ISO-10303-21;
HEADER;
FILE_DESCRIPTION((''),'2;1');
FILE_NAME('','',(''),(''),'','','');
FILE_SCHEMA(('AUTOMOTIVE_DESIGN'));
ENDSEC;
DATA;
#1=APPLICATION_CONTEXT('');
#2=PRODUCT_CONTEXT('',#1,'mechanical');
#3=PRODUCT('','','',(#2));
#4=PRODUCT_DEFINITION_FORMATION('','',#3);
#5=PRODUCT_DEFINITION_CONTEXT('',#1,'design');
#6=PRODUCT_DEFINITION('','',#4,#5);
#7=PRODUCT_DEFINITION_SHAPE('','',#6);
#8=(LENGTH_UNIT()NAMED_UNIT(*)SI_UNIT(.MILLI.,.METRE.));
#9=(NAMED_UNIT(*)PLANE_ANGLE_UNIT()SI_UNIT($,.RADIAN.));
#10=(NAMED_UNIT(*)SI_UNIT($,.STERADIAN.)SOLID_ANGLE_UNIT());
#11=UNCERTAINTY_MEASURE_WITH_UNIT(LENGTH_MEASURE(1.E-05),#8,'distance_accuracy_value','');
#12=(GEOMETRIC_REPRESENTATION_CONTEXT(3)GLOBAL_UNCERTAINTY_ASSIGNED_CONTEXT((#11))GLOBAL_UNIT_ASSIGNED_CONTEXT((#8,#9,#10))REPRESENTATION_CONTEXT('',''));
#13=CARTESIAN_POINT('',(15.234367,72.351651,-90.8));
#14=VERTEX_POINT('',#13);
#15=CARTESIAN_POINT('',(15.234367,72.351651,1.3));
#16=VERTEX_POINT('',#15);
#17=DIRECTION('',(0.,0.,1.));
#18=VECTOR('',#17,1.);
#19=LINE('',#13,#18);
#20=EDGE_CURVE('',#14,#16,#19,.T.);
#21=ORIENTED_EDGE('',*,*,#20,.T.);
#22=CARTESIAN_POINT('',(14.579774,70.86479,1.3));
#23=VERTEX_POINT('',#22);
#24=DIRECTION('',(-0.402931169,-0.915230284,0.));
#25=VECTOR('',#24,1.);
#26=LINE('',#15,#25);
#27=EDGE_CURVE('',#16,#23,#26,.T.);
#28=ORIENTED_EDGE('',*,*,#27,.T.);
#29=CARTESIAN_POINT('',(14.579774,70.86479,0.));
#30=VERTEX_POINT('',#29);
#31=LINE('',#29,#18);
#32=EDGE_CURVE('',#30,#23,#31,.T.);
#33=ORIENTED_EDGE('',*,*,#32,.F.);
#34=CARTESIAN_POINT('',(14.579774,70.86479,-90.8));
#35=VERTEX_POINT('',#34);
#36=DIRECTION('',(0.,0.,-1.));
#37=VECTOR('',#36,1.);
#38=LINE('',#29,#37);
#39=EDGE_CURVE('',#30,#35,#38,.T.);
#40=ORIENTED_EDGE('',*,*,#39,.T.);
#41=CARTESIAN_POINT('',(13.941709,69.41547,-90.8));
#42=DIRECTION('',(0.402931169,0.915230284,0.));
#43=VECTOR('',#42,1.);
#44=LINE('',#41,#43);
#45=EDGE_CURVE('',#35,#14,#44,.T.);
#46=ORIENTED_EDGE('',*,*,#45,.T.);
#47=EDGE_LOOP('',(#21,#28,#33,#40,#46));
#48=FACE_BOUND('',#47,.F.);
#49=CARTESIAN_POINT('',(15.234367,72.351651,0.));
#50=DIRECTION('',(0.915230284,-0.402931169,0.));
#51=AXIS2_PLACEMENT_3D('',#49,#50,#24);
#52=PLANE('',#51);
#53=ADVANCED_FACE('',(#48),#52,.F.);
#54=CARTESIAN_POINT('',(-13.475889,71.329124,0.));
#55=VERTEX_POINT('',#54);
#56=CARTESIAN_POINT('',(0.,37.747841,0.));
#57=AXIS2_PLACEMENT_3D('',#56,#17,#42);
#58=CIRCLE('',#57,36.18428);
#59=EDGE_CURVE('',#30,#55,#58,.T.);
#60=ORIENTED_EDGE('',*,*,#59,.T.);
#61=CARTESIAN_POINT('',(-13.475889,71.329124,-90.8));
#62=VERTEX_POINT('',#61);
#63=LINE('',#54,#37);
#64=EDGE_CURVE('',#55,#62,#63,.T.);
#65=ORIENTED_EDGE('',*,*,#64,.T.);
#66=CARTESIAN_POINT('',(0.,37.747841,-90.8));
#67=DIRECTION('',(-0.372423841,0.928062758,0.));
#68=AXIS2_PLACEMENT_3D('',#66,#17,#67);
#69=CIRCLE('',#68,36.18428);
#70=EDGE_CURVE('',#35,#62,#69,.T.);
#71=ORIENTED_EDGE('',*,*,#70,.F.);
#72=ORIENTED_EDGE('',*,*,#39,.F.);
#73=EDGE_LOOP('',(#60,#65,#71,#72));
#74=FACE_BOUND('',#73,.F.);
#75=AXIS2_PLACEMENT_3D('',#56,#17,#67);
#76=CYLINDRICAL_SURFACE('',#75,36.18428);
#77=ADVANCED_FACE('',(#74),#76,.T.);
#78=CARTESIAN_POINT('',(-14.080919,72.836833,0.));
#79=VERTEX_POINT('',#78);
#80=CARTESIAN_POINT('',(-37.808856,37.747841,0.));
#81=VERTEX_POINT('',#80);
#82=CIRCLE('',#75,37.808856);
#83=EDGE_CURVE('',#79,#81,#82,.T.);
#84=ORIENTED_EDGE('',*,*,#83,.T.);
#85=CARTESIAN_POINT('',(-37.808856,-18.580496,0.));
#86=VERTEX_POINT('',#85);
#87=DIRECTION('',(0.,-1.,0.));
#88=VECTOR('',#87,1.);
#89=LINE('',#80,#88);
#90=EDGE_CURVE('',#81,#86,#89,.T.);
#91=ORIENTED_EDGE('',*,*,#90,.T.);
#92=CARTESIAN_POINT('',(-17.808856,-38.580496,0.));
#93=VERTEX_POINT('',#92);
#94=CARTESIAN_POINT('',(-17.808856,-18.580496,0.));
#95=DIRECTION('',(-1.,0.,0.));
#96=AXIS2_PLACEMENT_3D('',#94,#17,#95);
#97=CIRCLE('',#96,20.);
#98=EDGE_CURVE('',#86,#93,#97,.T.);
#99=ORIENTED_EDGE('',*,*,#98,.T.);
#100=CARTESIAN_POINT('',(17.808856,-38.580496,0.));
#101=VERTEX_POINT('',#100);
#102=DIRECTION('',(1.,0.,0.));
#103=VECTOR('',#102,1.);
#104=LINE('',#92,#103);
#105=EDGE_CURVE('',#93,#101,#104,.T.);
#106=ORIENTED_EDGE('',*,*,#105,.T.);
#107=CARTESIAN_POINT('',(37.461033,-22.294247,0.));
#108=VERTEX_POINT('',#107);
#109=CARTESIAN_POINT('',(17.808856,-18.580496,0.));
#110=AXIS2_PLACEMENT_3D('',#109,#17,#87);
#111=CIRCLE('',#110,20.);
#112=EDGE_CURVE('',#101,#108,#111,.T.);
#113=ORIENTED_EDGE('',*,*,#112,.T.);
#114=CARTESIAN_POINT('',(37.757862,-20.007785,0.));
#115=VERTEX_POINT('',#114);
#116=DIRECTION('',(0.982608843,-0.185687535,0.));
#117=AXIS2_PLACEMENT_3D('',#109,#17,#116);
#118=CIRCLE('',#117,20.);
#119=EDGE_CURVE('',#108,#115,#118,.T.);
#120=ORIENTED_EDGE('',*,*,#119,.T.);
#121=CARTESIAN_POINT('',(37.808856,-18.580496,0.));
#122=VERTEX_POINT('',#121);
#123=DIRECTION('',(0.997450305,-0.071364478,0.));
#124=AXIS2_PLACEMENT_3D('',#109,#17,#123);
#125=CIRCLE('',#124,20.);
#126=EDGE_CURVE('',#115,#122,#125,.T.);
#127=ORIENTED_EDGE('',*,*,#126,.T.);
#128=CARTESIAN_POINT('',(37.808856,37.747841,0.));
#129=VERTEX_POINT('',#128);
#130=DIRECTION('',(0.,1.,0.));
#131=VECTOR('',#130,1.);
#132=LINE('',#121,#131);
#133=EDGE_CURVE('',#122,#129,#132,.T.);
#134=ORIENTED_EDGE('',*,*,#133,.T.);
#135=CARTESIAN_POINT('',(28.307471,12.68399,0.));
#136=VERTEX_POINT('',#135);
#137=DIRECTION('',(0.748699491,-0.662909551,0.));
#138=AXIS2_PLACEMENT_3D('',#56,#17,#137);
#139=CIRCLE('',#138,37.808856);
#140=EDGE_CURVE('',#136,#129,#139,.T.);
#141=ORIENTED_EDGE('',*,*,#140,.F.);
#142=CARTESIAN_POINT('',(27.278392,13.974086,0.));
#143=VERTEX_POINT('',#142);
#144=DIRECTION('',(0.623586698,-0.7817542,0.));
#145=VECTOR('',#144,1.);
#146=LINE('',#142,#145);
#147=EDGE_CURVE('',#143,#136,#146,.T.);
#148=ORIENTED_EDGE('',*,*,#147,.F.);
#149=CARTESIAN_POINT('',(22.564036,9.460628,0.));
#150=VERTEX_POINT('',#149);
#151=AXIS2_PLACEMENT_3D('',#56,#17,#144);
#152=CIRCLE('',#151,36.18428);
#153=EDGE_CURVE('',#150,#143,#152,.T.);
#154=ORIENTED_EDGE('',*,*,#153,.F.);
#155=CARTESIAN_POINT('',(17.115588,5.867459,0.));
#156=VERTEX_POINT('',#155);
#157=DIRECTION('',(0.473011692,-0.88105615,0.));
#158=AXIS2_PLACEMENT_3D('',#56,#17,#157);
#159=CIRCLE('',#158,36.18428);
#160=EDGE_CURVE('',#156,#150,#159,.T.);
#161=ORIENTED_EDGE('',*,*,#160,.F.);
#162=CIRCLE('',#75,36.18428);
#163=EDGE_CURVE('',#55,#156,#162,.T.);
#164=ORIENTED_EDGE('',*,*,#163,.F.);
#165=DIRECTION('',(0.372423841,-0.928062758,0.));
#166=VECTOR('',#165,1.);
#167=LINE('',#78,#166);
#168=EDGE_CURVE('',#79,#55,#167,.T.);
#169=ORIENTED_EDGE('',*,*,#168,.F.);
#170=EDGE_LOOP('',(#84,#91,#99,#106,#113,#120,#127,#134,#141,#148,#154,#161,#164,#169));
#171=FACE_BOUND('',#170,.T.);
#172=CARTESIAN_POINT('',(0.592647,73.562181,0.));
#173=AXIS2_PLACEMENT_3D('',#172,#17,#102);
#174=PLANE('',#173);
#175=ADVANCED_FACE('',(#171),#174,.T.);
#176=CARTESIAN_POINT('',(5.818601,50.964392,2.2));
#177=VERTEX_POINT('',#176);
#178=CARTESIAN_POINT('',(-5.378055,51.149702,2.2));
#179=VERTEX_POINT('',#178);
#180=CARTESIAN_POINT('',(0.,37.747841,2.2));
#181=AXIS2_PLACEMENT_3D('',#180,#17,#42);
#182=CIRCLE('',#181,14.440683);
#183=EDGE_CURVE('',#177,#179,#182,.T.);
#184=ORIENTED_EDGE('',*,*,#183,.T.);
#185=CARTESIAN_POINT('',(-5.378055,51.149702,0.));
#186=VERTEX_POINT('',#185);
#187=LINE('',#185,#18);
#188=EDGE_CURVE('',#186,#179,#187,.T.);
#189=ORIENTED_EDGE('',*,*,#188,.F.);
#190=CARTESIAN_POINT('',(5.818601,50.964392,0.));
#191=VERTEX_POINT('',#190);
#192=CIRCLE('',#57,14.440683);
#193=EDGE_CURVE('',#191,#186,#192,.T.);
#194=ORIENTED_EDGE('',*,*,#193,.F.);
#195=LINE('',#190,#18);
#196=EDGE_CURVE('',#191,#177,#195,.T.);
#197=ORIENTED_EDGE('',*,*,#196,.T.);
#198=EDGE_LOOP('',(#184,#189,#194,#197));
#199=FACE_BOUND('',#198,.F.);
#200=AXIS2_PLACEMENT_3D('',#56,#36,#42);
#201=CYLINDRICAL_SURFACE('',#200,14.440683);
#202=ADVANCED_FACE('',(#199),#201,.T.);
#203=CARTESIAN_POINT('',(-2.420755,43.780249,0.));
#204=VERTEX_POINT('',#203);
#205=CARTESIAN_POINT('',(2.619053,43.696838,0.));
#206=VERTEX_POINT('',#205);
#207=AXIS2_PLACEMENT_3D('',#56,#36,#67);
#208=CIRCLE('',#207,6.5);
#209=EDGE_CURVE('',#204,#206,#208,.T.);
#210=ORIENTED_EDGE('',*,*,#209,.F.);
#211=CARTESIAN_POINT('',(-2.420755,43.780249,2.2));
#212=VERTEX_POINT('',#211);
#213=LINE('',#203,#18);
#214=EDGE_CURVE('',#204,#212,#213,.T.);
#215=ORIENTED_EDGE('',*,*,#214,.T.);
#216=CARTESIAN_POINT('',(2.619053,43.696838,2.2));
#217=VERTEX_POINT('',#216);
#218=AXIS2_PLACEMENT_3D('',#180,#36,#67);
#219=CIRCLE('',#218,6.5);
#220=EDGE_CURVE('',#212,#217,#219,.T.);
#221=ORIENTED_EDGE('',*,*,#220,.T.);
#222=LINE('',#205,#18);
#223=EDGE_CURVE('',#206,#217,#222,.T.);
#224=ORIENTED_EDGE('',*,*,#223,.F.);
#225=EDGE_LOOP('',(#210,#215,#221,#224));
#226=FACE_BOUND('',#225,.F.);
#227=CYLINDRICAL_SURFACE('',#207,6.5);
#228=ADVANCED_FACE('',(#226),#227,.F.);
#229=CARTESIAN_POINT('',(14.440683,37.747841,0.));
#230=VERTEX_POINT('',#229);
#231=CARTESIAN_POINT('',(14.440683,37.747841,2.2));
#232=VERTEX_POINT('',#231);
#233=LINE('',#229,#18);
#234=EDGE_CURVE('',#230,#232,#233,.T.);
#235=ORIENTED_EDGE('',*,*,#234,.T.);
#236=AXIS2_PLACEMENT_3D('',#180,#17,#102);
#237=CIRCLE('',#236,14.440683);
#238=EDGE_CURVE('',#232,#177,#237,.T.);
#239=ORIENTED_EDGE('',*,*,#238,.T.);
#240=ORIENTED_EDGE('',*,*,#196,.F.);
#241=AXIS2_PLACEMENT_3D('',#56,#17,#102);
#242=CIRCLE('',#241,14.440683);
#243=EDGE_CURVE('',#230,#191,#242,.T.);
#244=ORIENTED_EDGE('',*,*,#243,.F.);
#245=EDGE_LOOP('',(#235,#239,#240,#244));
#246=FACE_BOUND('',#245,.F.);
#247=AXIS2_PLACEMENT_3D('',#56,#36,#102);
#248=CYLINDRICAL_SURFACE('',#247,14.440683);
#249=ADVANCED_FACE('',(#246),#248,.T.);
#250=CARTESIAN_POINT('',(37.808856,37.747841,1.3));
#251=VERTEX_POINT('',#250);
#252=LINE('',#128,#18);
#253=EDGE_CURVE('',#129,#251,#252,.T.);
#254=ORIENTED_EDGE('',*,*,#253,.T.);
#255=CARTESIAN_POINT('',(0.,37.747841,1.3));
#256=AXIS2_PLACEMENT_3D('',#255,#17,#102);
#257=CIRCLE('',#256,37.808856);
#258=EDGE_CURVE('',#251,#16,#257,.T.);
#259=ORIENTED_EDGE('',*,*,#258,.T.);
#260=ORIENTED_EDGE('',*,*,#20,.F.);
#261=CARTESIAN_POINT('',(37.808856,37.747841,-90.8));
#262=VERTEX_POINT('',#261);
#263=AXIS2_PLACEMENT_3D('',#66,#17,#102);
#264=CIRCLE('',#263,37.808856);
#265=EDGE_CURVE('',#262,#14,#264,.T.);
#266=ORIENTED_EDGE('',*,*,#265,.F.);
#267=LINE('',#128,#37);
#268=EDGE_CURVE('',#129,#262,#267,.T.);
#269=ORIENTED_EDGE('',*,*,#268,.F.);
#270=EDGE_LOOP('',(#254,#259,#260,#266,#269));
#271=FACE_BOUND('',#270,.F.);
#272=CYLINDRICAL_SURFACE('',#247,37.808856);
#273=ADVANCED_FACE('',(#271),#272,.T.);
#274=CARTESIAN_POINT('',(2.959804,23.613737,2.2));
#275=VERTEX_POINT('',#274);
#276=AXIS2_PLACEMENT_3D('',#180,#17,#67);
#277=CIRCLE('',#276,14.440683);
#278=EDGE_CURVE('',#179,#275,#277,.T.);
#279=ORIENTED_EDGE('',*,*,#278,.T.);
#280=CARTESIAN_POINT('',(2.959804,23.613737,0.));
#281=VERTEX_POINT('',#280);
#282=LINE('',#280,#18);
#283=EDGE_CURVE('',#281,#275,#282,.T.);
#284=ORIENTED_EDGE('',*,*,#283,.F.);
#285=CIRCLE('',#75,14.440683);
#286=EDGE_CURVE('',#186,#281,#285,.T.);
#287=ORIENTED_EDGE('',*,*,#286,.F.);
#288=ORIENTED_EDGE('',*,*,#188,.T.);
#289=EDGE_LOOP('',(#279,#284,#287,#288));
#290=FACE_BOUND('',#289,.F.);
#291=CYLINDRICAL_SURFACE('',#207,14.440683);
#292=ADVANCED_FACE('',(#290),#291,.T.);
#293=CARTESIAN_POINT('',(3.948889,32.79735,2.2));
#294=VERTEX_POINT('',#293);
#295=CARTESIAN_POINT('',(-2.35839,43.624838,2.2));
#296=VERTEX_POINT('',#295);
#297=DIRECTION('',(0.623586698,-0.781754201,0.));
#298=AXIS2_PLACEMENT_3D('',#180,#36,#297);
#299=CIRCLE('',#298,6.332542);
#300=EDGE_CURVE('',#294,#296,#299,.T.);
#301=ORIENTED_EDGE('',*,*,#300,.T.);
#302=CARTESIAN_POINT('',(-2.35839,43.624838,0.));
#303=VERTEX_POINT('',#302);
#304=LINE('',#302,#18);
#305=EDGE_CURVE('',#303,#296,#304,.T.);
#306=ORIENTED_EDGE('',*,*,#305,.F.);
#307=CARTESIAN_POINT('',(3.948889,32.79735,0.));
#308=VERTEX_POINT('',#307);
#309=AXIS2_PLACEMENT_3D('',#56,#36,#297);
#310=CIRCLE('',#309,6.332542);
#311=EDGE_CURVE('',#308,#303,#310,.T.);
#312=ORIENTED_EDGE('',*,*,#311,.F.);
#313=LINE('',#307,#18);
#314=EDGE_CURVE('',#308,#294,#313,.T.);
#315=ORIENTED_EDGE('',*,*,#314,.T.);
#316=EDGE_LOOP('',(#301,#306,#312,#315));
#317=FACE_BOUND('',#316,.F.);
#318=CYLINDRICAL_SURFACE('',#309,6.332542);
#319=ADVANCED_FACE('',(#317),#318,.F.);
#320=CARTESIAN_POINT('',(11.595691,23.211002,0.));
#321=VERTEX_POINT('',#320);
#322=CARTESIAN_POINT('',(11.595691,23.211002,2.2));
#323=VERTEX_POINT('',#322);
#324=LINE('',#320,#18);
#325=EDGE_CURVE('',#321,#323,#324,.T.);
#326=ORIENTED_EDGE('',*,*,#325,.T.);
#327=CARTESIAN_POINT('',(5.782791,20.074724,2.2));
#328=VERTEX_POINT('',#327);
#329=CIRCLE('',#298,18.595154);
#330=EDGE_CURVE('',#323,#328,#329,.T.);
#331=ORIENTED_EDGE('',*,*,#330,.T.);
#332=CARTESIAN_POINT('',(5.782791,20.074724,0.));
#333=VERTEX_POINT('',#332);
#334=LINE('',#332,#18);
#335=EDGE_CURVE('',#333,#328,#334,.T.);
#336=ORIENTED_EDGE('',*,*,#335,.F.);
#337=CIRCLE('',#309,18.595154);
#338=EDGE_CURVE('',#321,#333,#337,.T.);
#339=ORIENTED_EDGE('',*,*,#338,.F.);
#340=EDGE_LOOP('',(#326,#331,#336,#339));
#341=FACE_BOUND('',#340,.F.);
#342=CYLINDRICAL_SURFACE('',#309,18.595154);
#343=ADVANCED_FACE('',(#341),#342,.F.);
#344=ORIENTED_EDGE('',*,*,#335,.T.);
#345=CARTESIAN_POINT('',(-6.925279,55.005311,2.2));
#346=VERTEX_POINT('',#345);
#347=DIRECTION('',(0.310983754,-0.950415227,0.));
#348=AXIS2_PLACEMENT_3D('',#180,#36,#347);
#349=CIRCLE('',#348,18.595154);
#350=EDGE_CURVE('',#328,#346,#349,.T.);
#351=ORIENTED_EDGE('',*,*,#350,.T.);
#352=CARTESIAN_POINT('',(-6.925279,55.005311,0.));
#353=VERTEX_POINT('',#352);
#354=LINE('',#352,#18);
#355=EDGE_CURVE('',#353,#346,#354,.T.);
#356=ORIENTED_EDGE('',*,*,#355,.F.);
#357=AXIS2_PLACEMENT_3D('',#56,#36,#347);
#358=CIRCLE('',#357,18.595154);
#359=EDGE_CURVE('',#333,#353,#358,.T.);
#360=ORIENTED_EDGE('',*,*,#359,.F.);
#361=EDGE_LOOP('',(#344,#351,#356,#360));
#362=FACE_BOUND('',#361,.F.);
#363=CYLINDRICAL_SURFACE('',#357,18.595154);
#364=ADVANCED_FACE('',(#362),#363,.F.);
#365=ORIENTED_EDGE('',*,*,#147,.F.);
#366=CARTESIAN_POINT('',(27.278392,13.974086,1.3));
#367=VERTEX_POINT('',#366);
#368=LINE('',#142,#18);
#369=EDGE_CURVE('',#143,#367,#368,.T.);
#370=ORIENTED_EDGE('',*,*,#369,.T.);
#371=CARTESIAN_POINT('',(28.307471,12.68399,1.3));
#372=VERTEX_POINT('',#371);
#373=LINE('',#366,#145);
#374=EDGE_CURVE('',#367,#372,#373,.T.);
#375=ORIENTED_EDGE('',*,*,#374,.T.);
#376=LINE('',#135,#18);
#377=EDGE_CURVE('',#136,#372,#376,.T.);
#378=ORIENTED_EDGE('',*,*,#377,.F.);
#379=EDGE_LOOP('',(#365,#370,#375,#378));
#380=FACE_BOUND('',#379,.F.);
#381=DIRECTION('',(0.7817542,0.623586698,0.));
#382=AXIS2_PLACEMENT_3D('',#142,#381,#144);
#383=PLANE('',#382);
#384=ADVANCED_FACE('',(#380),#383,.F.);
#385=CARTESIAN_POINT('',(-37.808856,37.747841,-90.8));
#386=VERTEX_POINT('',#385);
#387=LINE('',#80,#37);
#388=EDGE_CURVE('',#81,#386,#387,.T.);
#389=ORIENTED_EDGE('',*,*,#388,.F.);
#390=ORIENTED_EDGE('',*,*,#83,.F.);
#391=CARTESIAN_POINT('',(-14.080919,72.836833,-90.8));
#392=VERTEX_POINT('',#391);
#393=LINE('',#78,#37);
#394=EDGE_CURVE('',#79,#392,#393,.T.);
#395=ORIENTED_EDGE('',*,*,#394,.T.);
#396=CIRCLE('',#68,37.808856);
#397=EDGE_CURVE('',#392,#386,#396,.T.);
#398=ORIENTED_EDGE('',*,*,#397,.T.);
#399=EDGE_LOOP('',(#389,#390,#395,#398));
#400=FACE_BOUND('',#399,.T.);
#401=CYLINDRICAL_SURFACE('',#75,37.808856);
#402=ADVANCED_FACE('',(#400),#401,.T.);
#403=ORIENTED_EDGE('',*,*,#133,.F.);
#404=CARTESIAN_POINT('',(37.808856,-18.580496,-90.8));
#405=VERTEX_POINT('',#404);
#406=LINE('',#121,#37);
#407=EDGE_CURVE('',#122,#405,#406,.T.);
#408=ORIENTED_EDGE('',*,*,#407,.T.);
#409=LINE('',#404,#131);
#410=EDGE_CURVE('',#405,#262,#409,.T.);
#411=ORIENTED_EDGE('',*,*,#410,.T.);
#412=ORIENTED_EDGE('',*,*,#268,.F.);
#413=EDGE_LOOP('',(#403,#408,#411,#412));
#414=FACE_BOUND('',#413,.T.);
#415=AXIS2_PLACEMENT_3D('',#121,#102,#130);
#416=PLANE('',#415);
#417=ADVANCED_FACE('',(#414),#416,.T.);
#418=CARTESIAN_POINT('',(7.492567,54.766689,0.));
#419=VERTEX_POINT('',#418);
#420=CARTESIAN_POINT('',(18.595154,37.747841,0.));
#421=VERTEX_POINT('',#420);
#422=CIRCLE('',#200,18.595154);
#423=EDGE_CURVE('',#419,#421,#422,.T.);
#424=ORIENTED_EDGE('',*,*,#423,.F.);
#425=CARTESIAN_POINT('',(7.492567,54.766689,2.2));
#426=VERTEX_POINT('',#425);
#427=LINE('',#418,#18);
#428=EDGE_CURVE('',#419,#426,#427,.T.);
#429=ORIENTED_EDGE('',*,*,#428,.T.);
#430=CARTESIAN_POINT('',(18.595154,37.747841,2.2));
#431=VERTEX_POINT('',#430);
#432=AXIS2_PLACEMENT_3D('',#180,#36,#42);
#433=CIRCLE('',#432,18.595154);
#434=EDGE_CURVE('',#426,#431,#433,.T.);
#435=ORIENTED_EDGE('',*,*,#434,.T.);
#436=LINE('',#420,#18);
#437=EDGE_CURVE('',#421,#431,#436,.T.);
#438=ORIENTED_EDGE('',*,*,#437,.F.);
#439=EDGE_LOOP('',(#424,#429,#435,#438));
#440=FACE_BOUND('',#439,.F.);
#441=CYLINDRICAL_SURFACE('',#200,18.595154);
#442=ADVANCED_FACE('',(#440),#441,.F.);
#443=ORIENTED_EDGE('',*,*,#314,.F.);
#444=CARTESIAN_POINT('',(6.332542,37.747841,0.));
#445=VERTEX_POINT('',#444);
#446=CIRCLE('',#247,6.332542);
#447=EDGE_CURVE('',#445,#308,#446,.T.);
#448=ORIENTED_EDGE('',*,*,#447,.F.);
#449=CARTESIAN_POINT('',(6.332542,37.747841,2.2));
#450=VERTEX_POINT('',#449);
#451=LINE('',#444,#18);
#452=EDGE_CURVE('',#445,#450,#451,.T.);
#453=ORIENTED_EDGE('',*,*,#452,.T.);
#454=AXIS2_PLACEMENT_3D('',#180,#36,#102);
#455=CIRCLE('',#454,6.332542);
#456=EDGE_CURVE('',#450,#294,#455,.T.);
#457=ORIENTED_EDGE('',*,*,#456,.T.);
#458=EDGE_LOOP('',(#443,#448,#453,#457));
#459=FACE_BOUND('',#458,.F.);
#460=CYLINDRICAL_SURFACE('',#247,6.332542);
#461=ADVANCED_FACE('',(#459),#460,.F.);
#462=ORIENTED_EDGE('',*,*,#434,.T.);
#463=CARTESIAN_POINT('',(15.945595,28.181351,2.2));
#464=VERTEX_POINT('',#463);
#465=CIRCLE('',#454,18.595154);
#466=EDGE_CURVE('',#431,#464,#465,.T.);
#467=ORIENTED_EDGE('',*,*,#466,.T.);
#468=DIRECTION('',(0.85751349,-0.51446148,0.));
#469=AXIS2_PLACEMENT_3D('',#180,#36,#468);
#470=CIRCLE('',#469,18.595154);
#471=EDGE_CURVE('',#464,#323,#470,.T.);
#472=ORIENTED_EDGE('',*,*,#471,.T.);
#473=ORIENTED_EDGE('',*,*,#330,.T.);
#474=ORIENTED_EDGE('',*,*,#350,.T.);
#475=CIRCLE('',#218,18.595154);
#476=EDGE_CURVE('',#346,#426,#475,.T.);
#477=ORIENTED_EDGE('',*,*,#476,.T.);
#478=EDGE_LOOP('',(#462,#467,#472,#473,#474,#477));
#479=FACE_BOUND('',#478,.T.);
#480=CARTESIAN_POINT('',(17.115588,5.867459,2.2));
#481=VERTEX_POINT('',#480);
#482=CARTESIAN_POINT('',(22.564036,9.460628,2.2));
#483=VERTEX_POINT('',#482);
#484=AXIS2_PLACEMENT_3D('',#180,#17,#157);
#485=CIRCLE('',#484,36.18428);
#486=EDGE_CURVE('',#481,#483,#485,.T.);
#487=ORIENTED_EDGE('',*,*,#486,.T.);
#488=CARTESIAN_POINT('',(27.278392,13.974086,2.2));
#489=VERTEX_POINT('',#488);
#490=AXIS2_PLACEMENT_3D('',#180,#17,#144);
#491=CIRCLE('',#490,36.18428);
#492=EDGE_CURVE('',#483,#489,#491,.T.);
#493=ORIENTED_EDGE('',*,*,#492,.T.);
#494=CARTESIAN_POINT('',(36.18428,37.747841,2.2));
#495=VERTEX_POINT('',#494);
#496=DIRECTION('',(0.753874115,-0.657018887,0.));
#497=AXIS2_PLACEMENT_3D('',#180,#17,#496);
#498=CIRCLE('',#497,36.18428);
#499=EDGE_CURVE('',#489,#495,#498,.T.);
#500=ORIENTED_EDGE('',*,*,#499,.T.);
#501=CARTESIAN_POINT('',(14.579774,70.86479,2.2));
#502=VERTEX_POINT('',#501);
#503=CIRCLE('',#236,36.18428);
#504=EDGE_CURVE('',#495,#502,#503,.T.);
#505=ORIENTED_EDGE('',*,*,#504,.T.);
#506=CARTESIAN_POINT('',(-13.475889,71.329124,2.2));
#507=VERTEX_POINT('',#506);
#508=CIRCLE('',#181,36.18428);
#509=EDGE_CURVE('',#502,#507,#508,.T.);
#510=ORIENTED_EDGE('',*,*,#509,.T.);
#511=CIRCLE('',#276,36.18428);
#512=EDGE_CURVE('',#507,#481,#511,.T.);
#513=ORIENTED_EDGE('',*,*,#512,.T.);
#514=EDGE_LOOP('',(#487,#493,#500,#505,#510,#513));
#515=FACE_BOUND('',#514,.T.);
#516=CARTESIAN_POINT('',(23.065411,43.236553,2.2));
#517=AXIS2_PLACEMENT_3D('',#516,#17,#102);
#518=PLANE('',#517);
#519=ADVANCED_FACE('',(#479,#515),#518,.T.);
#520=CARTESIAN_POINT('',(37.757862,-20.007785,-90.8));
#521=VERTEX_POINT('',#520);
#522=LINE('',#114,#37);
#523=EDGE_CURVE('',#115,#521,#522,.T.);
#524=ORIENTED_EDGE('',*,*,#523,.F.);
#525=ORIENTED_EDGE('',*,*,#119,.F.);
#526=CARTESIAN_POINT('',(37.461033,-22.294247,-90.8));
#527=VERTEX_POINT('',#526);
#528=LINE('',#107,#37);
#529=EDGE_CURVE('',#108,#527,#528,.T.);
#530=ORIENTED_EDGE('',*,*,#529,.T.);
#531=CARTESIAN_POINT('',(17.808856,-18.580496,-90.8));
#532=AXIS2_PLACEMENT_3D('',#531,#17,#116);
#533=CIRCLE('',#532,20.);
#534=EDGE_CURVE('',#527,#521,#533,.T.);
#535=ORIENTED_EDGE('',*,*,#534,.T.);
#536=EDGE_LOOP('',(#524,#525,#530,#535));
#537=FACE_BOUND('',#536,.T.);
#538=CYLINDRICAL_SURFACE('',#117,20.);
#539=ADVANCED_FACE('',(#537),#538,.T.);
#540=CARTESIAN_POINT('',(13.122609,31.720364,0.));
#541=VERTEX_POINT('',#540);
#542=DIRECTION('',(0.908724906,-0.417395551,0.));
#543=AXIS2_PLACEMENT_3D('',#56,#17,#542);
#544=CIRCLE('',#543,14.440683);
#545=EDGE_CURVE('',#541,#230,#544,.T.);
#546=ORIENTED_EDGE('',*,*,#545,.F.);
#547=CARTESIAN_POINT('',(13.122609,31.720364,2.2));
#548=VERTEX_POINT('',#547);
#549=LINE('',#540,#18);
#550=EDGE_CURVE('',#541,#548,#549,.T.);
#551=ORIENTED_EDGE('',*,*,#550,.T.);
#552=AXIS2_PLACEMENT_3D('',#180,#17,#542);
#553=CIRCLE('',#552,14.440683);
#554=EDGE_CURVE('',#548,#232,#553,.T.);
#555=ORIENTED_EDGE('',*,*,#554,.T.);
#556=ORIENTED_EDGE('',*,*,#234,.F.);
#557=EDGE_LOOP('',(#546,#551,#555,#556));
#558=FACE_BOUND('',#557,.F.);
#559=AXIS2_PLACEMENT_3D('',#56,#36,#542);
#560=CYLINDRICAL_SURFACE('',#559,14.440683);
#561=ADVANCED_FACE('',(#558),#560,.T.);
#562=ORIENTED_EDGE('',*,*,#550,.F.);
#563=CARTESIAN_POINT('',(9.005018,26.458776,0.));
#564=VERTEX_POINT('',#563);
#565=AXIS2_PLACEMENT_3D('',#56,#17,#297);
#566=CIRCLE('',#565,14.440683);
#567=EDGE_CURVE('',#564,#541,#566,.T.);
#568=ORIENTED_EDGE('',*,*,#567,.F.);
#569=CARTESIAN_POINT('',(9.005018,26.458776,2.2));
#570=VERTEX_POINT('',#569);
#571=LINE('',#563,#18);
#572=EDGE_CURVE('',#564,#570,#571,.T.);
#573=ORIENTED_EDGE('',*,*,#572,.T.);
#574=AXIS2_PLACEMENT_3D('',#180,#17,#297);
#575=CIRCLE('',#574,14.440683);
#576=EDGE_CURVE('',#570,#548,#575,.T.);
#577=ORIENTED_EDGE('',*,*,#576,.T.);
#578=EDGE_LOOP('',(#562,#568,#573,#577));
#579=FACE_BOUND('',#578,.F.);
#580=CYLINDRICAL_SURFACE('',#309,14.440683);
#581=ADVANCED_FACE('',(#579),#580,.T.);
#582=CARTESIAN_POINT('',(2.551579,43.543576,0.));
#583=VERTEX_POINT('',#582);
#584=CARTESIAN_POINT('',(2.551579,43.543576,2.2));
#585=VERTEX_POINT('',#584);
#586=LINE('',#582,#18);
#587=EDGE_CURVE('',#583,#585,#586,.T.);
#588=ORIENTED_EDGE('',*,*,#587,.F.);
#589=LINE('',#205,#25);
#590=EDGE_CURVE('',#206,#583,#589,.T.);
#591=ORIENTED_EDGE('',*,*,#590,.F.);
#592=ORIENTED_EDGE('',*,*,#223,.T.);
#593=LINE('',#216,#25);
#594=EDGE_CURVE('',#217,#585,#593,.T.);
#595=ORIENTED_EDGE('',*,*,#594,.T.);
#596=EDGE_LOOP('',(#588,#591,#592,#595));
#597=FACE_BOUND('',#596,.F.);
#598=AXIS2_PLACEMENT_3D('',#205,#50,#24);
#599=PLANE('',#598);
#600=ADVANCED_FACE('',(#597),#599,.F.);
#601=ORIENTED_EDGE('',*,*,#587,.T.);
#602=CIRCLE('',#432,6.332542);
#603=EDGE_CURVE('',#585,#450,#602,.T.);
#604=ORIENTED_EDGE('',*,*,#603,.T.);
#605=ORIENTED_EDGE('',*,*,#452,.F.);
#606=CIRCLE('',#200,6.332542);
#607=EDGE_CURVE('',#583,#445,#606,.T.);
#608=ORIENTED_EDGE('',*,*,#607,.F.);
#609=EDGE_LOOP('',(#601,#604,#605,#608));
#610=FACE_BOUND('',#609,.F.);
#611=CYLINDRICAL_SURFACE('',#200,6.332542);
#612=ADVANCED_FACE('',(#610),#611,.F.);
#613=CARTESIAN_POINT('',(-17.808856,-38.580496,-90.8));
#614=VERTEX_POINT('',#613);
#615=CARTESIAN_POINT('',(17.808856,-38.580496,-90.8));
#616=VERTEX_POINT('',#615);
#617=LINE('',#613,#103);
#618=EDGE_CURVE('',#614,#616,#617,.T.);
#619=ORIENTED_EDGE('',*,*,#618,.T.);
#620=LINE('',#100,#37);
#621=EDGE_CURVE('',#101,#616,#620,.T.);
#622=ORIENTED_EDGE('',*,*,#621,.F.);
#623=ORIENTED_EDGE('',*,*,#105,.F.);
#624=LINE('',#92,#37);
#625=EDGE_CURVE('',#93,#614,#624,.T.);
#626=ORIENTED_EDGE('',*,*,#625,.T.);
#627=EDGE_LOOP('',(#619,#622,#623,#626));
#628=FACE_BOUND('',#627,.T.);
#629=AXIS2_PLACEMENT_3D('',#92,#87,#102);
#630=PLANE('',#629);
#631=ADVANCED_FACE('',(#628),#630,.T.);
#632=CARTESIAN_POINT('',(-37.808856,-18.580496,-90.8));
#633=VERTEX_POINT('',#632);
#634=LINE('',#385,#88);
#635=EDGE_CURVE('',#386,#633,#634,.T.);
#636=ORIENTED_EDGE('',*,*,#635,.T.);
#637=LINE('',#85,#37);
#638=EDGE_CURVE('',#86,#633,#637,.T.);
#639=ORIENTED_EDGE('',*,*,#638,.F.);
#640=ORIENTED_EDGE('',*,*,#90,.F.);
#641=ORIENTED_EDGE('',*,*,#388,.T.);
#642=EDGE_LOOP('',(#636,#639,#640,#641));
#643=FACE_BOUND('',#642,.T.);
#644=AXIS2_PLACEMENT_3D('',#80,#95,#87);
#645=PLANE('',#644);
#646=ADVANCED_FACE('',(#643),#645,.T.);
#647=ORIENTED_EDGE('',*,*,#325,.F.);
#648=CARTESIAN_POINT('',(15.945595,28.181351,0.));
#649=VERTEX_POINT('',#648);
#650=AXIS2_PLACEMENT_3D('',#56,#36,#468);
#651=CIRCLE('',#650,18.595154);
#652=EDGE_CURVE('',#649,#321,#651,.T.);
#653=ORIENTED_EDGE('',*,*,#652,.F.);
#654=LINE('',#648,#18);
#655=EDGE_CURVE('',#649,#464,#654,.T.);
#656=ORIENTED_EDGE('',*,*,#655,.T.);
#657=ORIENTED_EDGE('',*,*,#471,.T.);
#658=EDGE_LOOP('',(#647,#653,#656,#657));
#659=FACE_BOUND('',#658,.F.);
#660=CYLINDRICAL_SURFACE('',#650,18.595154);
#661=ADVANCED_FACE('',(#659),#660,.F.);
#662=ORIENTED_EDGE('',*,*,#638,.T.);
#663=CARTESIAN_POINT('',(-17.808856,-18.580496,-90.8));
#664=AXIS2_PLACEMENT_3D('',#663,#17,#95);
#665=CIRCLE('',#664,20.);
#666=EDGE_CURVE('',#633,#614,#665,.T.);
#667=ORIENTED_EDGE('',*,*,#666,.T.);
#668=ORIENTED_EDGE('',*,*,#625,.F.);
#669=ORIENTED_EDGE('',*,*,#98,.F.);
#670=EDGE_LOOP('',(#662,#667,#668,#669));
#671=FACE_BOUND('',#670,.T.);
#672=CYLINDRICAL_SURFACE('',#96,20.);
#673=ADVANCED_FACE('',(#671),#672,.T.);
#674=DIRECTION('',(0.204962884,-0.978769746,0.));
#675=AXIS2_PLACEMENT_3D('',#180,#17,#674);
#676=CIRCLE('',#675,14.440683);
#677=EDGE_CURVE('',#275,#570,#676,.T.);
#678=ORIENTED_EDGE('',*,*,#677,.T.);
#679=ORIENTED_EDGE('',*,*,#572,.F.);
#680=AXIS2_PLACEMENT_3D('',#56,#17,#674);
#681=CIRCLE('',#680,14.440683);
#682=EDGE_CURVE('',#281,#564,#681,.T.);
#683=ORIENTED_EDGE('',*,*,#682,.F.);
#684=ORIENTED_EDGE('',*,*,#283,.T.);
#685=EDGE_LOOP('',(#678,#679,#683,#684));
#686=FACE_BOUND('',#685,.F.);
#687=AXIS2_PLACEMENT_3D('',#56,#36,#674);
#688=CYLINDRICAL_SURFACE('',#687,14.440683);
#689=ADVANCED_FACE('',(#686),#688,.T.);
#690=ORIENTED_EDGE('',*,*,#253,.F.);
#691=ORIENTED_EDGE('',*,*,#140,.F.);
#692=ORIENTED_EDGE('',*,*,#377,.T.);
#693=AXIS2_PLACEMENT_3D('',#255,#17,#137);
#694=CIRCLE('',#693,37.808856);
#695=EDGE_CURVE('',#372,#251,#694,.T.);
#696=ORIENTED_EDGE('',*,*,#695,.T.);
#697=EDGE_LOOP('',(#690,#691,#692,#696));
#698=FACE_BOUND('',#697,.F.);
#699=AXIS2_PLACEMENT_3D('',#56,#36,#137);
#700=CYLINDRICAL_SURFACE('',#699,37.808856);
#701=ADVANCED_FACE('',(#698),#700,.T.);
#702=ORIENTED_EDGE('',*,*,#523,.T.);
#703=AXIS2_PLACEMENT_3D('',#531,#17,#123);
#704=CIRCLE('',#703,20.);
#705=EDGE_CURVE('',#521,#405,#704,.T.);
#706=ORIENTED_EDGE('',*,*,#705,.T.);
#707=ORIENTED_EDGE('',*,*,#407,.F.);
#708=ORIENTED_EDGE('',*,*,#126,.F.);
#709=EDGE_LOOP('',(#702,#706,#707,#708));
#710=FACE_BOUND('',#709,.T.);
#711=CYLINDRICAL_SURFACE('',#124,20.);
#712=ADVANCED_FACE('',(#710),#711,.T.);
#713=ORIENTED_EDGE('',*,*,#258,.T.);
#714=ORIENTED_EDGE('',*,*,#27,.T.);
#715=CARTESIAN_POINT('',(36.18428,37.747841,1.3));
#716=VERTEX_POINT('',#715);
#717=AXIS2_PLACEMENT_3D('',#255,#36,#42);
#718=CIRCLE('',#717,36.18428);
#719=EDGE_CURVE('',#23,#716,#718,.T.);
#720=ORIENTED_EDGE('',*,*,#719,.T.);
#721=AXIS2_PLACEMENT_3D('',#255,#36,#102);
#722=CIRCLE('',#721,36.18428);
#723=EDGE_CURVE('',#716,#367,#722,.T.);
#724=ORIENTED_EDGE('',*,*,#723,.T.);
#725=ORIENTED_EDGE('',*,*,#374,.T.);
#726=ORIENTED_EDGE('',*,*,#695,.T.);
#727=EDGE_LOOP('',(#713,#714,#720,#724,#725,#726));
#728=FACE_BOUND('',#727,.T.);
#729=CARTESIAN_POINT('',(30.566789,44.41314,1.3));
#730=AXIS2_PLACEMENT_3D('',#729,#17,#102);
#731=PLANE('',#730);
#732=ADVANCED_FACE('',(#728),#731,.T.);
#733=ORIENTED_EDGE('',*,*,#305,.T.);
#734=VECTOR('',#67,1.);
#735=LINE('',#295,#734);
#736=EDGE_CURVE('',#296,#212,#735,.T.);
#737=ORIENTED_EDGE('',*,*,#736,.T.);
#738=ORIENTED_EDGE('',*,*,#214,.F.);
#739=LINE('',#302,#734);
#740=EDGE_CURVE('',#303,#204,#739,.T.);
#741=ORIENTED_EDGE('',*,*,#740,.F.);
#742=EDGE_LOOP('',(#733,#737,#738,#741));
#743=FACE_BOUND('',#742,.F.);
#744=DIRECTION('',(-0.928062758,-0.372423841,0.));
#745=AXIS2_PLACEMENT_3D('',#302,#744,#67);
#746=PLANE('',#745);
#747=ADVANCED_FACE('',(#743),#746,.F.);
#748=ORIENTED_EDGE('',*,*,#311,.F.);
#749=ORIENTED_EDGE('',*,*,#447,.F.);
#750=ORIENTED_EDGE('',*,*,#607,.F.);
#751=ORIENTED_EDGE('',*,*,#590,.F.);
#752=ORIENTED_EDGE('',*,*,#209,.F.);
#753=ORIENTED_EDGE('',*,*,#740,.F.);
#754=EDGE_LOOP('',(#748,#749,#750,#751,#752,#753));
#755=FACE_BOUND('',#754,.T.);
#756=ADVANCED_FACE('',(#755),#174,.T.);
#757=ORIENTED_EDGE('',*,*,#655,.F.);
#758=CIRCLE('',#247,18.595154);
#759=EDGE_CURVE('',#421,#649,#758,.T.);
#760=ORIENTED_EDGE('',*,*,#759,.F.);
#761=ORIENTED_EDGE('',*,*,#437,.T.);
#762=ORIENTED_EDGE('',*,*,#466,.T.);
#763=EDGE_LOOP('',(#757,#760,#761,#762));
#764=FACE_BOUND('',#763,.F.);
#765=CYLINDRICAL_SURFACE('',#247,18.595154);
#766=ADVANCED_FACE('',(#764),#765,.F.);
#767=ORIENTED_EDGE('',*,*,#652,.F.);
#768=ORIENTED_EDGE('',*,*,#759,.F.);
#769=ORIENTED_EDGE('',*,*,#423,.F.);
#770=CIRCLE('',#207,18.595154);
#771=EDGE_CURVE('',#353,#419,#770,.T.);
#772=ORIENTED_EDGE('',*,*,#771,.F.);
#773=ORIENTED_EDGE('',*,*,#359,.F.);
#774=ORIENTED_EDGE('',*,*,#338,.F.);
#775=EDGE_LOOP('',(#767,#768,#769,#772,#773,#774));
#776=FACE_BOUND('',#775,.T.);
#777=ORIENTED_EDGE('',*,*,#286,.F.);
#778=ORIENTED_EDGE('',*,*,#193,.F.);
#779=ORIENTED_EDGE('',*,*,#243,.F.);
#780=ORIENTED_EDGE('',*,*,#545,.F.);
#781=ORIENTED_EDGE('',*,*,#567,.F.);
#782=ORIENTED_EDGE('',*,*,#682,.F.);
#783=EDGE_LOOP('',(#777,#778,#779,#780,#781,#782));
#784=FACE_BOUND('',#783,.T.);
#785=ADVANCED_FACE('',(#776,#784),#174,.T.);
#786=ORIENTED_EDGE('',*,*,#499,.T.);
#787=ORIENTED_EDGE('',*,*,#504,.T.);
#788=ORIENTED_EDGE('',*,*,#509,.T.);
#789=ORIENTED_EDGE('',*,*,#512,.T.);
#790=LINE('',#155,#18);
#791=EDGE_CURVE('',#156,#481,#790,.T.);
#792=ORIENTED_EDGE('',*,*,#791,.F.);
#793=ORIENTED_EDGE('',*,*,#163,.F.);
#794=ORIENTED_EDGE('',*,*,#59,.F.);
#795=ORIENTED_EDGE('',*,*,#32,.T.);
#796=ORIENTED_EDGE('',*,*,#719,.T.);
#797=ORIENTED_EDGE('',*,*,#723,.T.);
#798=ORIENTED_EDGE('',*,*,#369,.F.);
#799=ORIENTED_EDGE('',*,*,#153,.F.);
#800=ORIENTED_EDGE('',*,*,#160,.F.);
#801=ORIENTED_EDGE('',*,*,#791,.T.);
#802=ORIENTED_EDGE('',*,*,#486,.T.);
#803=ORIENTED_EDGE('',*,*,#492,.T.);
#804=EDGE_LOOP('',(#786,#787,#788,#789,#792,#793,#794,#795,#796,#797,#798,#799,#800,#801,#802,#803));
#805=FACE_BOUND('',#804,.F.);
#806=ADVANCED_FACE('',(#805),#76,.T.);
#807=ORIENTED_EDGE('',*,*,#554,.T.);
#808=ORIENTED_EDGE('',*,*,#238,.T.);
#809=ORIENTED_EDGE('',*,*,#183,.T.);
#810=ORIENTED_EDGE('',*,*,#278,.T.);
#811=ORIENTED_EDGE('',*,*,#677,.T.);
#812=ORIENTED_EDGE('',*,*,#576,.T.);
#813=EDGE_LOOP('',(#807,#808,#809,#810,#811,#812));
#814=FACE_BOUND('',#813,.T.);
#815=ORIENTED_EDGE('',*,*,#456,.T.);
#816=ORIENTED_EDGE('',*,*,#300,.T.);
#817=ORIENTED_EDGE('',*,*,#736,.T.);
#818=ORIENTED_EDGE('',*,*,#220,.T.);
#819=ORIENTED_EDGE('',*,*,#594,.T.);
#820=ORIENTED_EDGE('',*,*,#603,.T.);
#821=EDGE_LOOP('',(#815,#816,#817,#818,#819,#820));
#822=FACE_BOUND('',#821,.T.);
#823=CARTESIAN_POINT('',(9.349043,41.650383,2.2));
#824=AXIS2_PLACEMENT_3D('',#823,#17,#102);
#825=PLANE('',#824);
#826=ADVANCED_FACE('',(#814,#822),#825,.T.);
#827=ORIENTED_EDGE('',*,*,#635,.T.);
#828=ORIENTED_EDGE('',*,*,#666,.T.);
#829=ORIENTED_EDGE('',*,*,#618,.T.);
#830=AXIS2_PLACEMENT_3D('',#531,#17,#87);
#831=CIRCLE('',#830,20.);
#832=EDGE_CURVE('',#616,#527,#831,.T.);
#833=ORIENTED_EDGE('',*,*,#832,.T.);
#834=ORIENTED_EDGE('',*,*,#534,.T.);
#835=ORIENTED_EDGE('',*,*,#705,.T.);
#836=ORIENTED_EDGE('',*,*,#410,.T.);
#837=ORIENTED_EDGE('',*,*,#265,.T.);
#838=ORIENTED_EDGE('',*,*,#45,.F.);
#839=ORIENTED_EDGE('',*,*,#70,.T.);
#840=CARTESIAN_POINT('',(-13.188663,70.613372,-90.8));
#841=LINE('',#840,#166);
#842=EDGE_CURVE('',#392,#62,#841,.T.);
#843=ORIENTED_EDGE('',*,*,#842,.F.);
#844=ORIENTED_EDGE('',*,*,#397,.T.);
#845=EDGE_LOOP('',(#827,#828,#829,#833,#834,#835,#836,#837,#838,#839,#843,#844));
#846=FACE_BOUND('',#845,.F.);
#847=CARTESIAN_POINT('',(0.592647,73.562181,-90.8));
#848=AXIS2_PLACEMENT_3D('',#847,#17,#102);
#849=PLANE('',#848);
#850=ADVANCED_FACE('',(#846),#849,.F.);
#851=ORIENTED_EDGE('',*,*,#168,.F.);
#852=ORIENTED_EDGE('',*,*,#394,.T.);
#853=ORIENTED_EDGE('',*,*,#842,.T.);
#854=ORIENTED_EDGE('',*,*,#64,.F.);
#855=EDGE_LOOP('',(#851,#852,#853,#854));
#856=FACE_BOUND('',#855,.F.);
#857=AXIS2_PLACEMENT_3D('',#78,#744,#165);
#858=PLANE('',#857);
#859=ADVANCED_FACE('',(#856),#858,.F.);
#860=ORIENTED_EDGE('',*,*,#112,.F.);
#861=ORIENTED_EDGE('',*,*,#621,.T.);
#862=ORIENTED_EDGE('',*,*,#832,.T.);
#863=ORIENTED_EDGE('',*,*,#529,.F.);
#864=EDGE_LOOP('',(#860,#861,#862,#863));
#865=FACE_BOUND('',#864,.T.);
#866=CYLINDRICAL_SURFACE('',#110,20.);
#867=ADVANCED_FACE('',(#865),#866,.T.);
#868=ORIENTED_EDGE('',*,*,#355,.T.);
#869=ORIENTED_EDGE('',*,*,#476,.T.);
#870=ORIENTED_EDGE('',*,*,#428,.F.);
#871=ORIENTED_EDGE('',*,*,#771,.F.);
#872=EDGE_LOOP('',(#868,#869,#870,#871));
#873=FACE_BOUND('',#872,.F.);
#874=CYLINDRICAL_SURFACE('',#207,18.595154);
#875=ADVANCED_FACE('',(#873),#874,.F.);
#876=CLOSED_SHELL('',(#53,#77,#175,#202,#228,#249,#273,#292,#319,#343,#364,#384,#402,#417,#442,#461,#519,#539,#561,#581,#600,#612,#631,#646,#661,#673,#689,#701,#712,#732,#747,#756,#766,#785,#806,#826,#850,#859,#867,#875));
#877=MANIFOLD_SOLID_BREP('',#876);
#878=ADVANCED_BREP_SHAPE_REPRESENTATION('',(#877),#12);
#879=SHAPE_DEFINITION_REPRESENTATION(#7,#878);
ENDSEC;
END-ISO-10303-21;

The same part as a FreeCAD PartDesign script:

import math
import FreeCAD as App
import Part
import Sketcher

doc = App.newDocument("Part")
body = doc.addObject("PartDesign::Body", "Body")

# Sketch on XY plane
sketch1 = body.newObject("Sketcher::SketchObject", "Sketch")
sketch1.AttachmentSupport = (doc.getObject("XY_Plane"), [""])
sketch1.MapMode = "FlatFace"
sketch1.addGeometry([
    Part.ArcOfCircle(Part.Circle(App.Vector(0, 37.7, 0), App.Vector(0, 0, 1), 37.8), math.radians(0), math.radians(66)),  # 0
    Part.ArcOfCircle(Part.Circle(App.Vector(0, 37.7, 0), App.Vector(0, 0, 1), 37.8), math.radians(66.24), math.radians(83.87)),  # 1
    Part.LineSegment(App.Vector(4, 75.3, 0), App.Vector(-3.8, 75.4, 0)),  # 2
    Part.ArcOfCircle(Part.Circle(App.Vector(0, 37.7, 0), App.Vector(0, 0, 1), 37.8), math.radians(95.84), math.radians(111.87)),  # 3
    Part.ArcOfCircle(Part.Circle(App.Vector(0, 37.7, 0), App.Vector(0, 0, 1), 37.8), math.radians(112), math.radians(180)),  # 4
    Part.LineSegment(App.Vector(-37.8, 37.7, 0), App.Vector(-37.8, -18.6, 0)),  # 5
    Part.ArcOfCircle(Part.Circle(App.Vector(-17.8, -18.6, 0), App.Vector(0, 0, 1), 20), math.radians(180), math.radians(270)),  # 6
    Part.LineSegment(App.Vector(-17.8, -38.6, 0), App.Vector(17.8, -38.6, 0)),  # 7
    Part.ArcOfCircle(Part.Circle(App.Vector(17.8, -18.6, 0), App.Vector(0, 0, 1), 20), math.radians(-90), math.radians(-11)),  # 8
    Part.ArcOfCircle(Part.Circle(App.Vector(17.8, -18.6, 0), App.Vector(0, 0, 1), 20), math.radians(-10.7), math.radians(-4.09)),  # 9
    Part.ArcOfCircle(Part.Circle(App.Vector(17.8, -18.6, 0), App.Vector(0, 0, 1), 20), math.radians(-4.09), math.radians(0)),  # 10
    Part.LineSegment(App.Vector(37.8, -18.6, 0), App.Vector(37.8, 37.7, 0)),  # 11
], False)
sketch1.addConstraint([
    Sketcher.Constraint("Tangent", 0, 2, 1, 1),
    Sketcher.Constraint("Coincident", 1, 2, 2, 1),
    Sketcher.Constraint("Coincident", 2, 2, 3, 1),
    Sketcher.Constraint("Tangent", 3, 2, 4, 1),
    Sketcher.Constraint("Tangent", 4, 2, 5, 1),
    Sketcher.Constraint("Tangent", 5, 2, 6, 1),
    Sketcher.Constraint("Tangent", 6, 2, 7, 1),
    Sketcher.Constraint("Tangent", 7, 2, 8, 1),
    Sketcher.Constraint("Tangent", 8, 2, 9, 1),
    Sketcher.Constraint("Tangent", 9, 2, 10, 1),
    Sketcher.Constraint("Tangent", 10, 2, 11, 1),
    Sketcher.Constraint("Tangent", 11, 2, 0, 1),
    Sketcher.Constraint("Vertical", 5),
    Sketcher.Constraint("Horizontal", 7),
    Sketcher.Constraint("Vertical", 11),
    Sketcher.Constraint("Coincident", 3, 3, 0, 3),
    Sketcher.Constraint("Coincident", 10, 3, 8, 3),
    Sketcher.Constraint("Equal", 0, 1),
    Sketcher.Constraint("Equal", 1, 3),
    Sketcher.Constraint("Equal", 3, 4),
    Sketcher.Constraint("Equal", 6, 8),
    Sketcher.Constraint("PointOnObject", 0, 3, -2),
    Sketcher.Constraint("Radius", 6, 20.0),
    Sketcher.Constraint("Radius", 0, 37.808856),
    Sketcher.Constraint("DistanceX", 2, 2, 0, 2, 19.083699),
    Sketcher.Constraint("DistanceY", 5, 2, 5, 1, 56.328337),
    Sketcher.Constraint("DistanceY", -1, 1, 0, 3, 37.747841),
    Sketcher.Constraint("DistanceY", -1, 1, 0, 2, 72.351651),
    Sketcher.Constraint("DistanceY", -1, 1, 1, 2, 75.340519),
    Sketcher.Constraint("DistanceX", 3, 2, -1, 1, 14.080919),
    Sketcher.Constraint("DistanceY", 8, 2, 10, 3, 3.713751),
    Sketcher.Constraint("DistanceX", 8, 2, 9, 2, 0.296829),
])
pad1 = body.newObject("PartDesign::Pad", "Pad")
pad1.Profile = sketch1
pad1.Length = 90.8
pad1.Reversed = True

# Sketch on XY plane
sketch2 = body.newObject("Sketcher::SketchObject", "Sketch001")
sketch2.AttachmentSupport = (doc.getObject("XY_Plane"), [""])
sketch2.MapMode = "FlatFace"
sketch2.addGeometry([
    Part.ArcOfCircle(Part.Circle(App.Vector(0, 37.75, 0), App.Vector(0, 0, 1), 36.18), math.radians(0), math.radians(66)),  # 0
    Part.ArcOfCircle(Part.Circle(App.Vector(0, 37.75, 0), App.Vector(0, 0, 1), 36.18), math.radians(66), math.radians(112)),  # 1
    Part.ArcOfCircle(Part.Circle(App.Vector(0, 37.75, 0), App.Vector(0, 0, 1), 36.18), math.radians(112), math.radians(298)),  # 2
    Part.ArcOfCircle(Part.Circle(App.Vector(0, 37.75, 0), App.Vector(0, 0, 1), 36.18), math.radians(-61.77), math.radians(-51.42)),  # 3
    Part.ArcOfCircle(Part.Circle(App.Vector(0, 37.75, 0), App.Vector(0, 0, 1), 36.18), math.radians(-51.42), math.radians(-41.07)),  # 4
    Part.ArcOfCircle(Part.Circle(App.Vector(0, 37.75, 0), App.Vector(0, 0, 1), 36.18), math.radians(-41), math.radians(0)),  # 5
    Part.ArcOfCircle(Part.Circle(App.Vector(0, 37.75, 0), App.Vector(0, 0, 1), 18.6), math.radians(0), math.radians(66)),  # 6
    Part.ArcOfCircle(Part.Circle(App.Vector(0, 37.75, 0), App.Vector(0, 0, 1), 18.6), math.radians(-31), math.radians(0)),  # 7
    Part.ArcOfCircle(Part.Circle(App.Vector(0, 37.75, 0), App.Vector(0, 0, 1), 18.6), math.radians(-51), math.radians(-31)),  # 8
    Part.ArcOfCircle(Part.Circle(App.Vector(0, 37.75, 0), App.Vector(0, 0, 1), 18.6), math.radians(-72), math.radians(-51)),  # 9
    Part.ArcOfCircle(Part.Circle(App.Vector(0, 37.75, 0), App.Vector(0, 0, 1), 18.6), math.radians(112), math.radians(288)),  # 10
    Part.ArcOfCircle(Part.Circle(App.Vector(0, 37.75, 0), App.Vector(0, 0, 1), 18.6), math.radians(66), math.radians(112)),  # 11
    Part.ArcOfCircle(Part.Circle(App.Vector(0, 37.75, 0), App.Vector(0, 0, 1), 14.44), math.radians(0), math.radians(66)),  # 12
    Part.ArcOfCircle(Part.Circle(App.Vector(0, 37.75, 0), App.Vector(0, 0, 1), 14.44), math.radians(66), math.radians(112)),  # 13
    Part.ArcOfCircle(Part.Circle(App.Vector(0, 37.75, 0), App.Vector(0, 0, 1), 14.44), math.radians(112), math.radians(282)),  # 14
    Part.ArcOfCircle(Part.Circle(App.Vector(0, 37.75, 0), App.Vector(0, 0, 1), 14.44), math.radians(-78), math.radians(-51)),  # 15
    Part.ArcOfCircle(Part.Circle(App.Vector(0, 37.75, 0), App.Vector(0, 0, 1), 14.44), math.radians(-51), math.radians(-25)),  # 16
    Part.ArcOfCircle(Part.Circle(App.Vector(0, 37.75, 0), App.Vector(0, 0, 1), 14.44), math.radians(-25), math.radians(0)),  # 17
    Part.LineSegment(App.Vector(2.62, 43.7, 0), App.Vector(2.55, 43.54, 0)),  # 18
    Part.ArcOfCircle(Part.Circle(App.Vector(0, 37.75, 0), App.Vector(0, 0, 1), 6.33), math.radians(0), math.radians(66)),  # 19
    Part.ArcOfCircle(Part.Circle(App.Vector(0, 37.75, 0), App.Vector(0, 0, 1), 6.33), math.radians(-51), math.radians(0)),  # 20
    Part.ArcOfCircle(Part.Circle(App.Vector(0, 37.75, 0), App.Vector(0, 0, 1), 6.33), math.radians(112), math.radians(309)),  # 21
    Part.LineSegment(App.Vector(-2.36, 43.62, 0), App.Vector(-2.42, 43.78, 0)),  # 22
    Part.ArcOfCircle(Part.Circle(App.Vector(0, 37.75, 0), App.Vector(0, 0, 1), 6.5), math.radians(66), math.radians(112)),  # 23
], False)
sketch2.addConstraint([
    Sketcher.Constraint("Tangent", 0, 2, 1, 1),
    Sketcher.Constraint("Tangent", 1, 2, 2, 1),
    Sketcher.Constraint("Tangent", 2, 2, 3, 1),
    Sketcher.Constraint("Tangent", 3, 2, 4, 1),
    Sketcher.Constraint("Tangent", 4, 2, 5, 1),
    Sketcher.Constraint("Tangent", 5, 2, 0, 1),
    Sketcher.Constraint("Tangent", 6, 1, 7, 2),
    Sketcher.Constraint("Tangent", 7, 1, 8, 2),
    Sketcher.Constraint("Tangent", 8, 1, 9, 2),
    Sketcher.Constraint("Tangent", 9, 1, 10, 2),
    Sketcher.Constraint("Tangent", 10, 1, 11, 2),
    Sketcher.Constraint("Tangent", 11, 1, 6, 2),
    Sketcher.Constraint("Tangent", 12, 2, 13, 1),
    Sketcher.Constraint("Tangent", 13, 2, 14, 1),
    Sketcher.Constraint("Tangent", 14, 2, 15, 1),
    Sketcher.Constraint("Tangent", 15, 2, 16, 1),
    Sketcher.Constraint("Tangent", 16, 2, 17, 1),
    Sketcher.Constraint("Tangent", 17, 2, 12, 1),
    Sketcher.Constraint("Coincident", 18, 2, 19, 2),
    Sketcher.Constraint("Tangent", 19, 1, 20, 2),
    Sketcher.Constraint("Tangent", 20, 1, 21, 2),
    Sketcher.Constraint("Coincident", 21, 1, 22, 1),
    Sketcher.Constraint("Coincident", 22, 2, 23, 2),
    Sketcher.Constraint("Coincident", 23, 1, 18, 1),
    Sketcher.Constraint("Coincident", 2, 3, 0, 3),
    Sketcher.Constraint("Coincident", 6, 3, 0, 3),
    Sketcher.Constraint("Coincident", 8, 3, 0, 3),
    Sketcher.Constraint("Coincident", 12, 3, 0, 3),
    Sketcher.Constraint("Coincident", 14, 3, 0, 3),
    Sketcher.Constraint("Coincident", 19, 3, 0, 3),
    Sketcher.Constraint("Coincident", 21, 3, 0, 3),
    Sketcher.Constraint("Coincident", 23, 3, 0, 3),
    Sketcher.Constraint("Equal", 2, 3),
    Sketcher.Constraint("Equal", 8, 9),
    Sketcher.Constraint("Equal", 14, 15),
    Sketcher.Constraint("PointOnObject", 0, 3, -2),
    Sketcher.Constraint("Horizontal", 23, 3, 5, 2),
    Sketcher.Constraint("Horizontal", 5, 2, 6, 1),
    Sketcher.Constraint("Horizontal", 6, 1, 17, 2),
    Sketcher.Constraint("Horizontal", 17, 2, 19, 1),
    Sketcher.Constraint("Radius", 23, 6.5),
    Sketcher.Constraint("Radius", 0, 36.18428),
    Sketcher.Constraint("DistanceY", -1, 1, 8, 1, 23.211002),
    Sketcher.Constraint("Radius", 6, 18.595154),
    Sketcher.Constraint("Radius", 12, 14.440683),
    Sketcher.Constraint("Radius", 19, 6.332542),
    Sketcher.Constraint("DistanceY", 21, 1, 23, 1, 0.072),
    Sketcher.Constraint("DistanceX", -1, 1, 12, 2, 5.818601),
    Sketcher.Constraint("DistanceY", -1, 1, 13, 2, 51.149702),
    Sketcher.Constraint("DistanceX", 8, 1, 4, 2, 15.682702),
    Sketcher.Constraint("DistanceX", 9, 1, 8, 1, 5.8129),
    Sketcher.Constraint("DistanceY", 11, 1, 0, 2, 16.098101),
    Sketcher.Constraint("DistanceY", -1, 1, 0, 3, 37.747841),
    Sketcher.Constraint("DistanceY", -1, 1, 0, 2, 70.86479),
    Sketcher.Constraint("DistanceX", 1, 2, -1, 1, 13.475889),
    Sketcher.Constraint("DistanceY", -1, 1, 2, 2, 5.867459),
    Sketcher.Constraint("DistanceY", -1, 1, 3, 2, 9.460628),
    Sketcher.Constraint("DistanceY", -1, 1, 7, 1, 28.181351),
    Sketcher.Constraint("DistanceX", 10, 1, -1, 1, 6.925279),
    Sketcher.Constraint("DistanceX", -1, 1, 15, 2, 9.005018),
    Sketcher.Constraint("DistanceX", -1, 1, 16, 2, 13.122609),
    Sketcher.Constraint("DistanceX", -1, 1, 18, 2, 2.551579),
    Sketcher.Constraint("DistanceX", -1, 1, 20, 1, 3.948889),
    Sketcher.Constraint("DistanceX", 21, 1, -1, 1, 2.35839),
    Sketcher.Constraint("DistanceY", -1, 1, 22, 2, 43.780249),
    Sketcher.Constraint("DistanceX", 14, 2, 7, 1, 12.985791),
])
pad2 = body.newObject("PartDesign::Pad", "Pad001")
pad2.Profile = sketch2
pad2.Length = 2.2

# Sketch on XY plane
sketch3 = body.newObject("Sketcher::SketchObject", "Sketch002")
sketch3.AttachmentSupport = (doc.getObject("XY_Plane"), [""])
sketch3.MapMode = "FlatFace"
sketch3.addGeometry([
    Part.LineSegment(App.Vector(14.6, 70.9, 0), App.Vector(15.2, 72.4, 0)),  # 0
    Part.ArcOfCircle(Part.Circle(App.Vector(0, 37.7, 0), App.Vector(0, 0, 1), 37.8), math.radians(66.24), math.radians(83.87)),  # 1
    Part.LineSegment(App.Vector(4, 75.3, 0), App.Vector(-3.8, 75.4, 0)),  # 2
    Part.ArcOfCircle(Part.Circle(App.Vector(0, 37.7, 0), App.Vector(0, 0, 1), 37.8), math.radians(95.84), math.radians(111.87)),  # 3
    Part.LineSegment(App.Vector(-14.1, 72.8, 0), App.Vector(-13.5, 71.3, 0)),  # 4
    Part.ArcOfCircle(Part.Circle(App.Vector(0, 37.7, 0), App.Vector(0, 0, 1), 36.2), math.radians(66), math.radians(112)),  # 5
], False)
sketch3.addConstraint([
    Sketcher.Constraint("Coincident", 0, 2, 1, 1),
    Sketcher.Constraint("Coincident", 1, 2, 2, 1),
    Sketcher.Constraint("Coincident", 2, 2, 3, 1),
    Sketcher.Constraint("Coincident", 3, 2, 4, 1),
    Sketcher.Constraint("Coincident", 4, 2, 5, 2),
    Sketcher.Constraint("Coincident", 5, 1, 0, 1),
    Sketcher.Constraint("Coincident", 3, 3, 1, 3),
    Sketcher.Constraint("Coincident", 5, 3, 1, 3),
    Sketcher.Constraint("Equal", 1, 3),
    Sketcher.Constraint("PointOnObject", 1, 3, -2),
    Sketcher.Constraint("Radius", 5, 36.18428),
    Sketcher.Constraint("Radius", 1, 37.808856),
    Sketcher.Constraint("DistanceX", 2, 2, 0, 2, 19.083699),
    Sketcher.Constraint("DistanceY", -1, 1, 1, 3, 37.747841),
    Sketcher.Constraint("DistanceY", -1, 1, 0, 2, 72.351651),
    Sketcher.Constraint("DistanceY", -1, 1, 1, 2, 75.340519),
    Sketcher.Constraint("DistanceX", 3, 2, -1, 1, 14.080919),
    Sketcher.Constraint("DistanceX", 4, 2, -1, 1, 13.475889),
    Sketcher.Constraint("DistanceY", -1, 1, 5, 1, 70.86479),
])
pocket1 = body.newObject("PartDesign::Pocket", "Pocket")
pocket1.Profile = sketch3
pocket1.Length = 98.2

# Sketch on XY plane
sketch4 = body.newObject("Sketcher::SketchObject", "Sketch003")
sketch4.AttachmentSupport = (doc.getObject("XY_Plane"), [""])
sketch4.MapMode = "FlatFace"
sketch4.addGeometry([
    Part.ArcOfCircle(Part.Circle(App.Vector(0, 37.7, 0), App.Vector(0, 0, 1), 37.8), math.radians(-42), math.radians(0)),  # 0
    Part.ArcOfCircle(Part.Circle(App.Vector(0, 37.7, 0), App.Vector(0, 0, 1), 37.8), math.radians(0), math.radians(66)),  # 1
    Part.LineSegment(App.Vector(15.2, 72.4, 0), App.Vector(14.6, 70.9, 0)),  # 2
    Part.ArcOfCircle(Part.Circle(App.Vector(0, 37.7, 0), App.Vector(0, 0, 1), 36.2), math.radians(0), math.radians(66)),  # 3
    Part.ArcOfCircle(Part.Circle(App.Vector(0, 37.7, 0), App.Vector(0, 0, 1), 36.2), math.radians(-41), math.radians(0)),  # 4
    Part.LineSegment(App.Vector(27.3, 14, 0), App.Vector(28.3, 12.7, 0)),  # 5
], False)
sketch4.addConstraint([
    Sketcher.Constraint("Tangent", 0, 2, 1, 1),
    Sketcher.Constraint("Coincident", 1, 2, 2, 1),
    Sketcher.Constraint("Coincident", 2, 2, 3, 2),
    Sketcher.Constraint("Tangent", 3, 1, 4, 2),
    Sketcher.Constraint("Coincident", 4, 1, 5, 1),
    Sketcher.Constraint("Coincident", 5, 2, 0, 1),
    Sketcher.Constraint("Coincident", 3, 3, 0, 3),
    Sketcher.Constraint("Equal", 0, 1),
    Sketcher.Constraint("Equal", 3, 4),
    Sketcher.Constraint("PointOnObject", 0, 3, -2),
    Sketcher.Constraint("Horizontal", 4, 3, 0, 2),
    Sketcher.Constraint("Horizontal", 0, 2, 3, 1),
    Sketcher.Constraint("Radius", 3, 36.18428),
    Sketcher.Constraint("Radius", 0, 37.808856),
    Sketcher.Constraint("Distance", 5, 1.650258),
    Sketcher.Constraint("DistanceY", -1, 1, 0, 3, 37.747841),
    Sketcher.Constraint("DistanceY", -1, 1, 1, 2, 72.351651),
    Sketcher.Constraint("DistanceY", -1, 1, 2, 2, 70.86479),
    Sketcher.Constraint("DistanceX", -1, 1, 5, 2, 28.307471),
])
pad3 = body.newObject("PartDesign::Pad", "Pad002")
pad3.Profile = sketch4
pad3.Length = 1.3

doc.recompute()
